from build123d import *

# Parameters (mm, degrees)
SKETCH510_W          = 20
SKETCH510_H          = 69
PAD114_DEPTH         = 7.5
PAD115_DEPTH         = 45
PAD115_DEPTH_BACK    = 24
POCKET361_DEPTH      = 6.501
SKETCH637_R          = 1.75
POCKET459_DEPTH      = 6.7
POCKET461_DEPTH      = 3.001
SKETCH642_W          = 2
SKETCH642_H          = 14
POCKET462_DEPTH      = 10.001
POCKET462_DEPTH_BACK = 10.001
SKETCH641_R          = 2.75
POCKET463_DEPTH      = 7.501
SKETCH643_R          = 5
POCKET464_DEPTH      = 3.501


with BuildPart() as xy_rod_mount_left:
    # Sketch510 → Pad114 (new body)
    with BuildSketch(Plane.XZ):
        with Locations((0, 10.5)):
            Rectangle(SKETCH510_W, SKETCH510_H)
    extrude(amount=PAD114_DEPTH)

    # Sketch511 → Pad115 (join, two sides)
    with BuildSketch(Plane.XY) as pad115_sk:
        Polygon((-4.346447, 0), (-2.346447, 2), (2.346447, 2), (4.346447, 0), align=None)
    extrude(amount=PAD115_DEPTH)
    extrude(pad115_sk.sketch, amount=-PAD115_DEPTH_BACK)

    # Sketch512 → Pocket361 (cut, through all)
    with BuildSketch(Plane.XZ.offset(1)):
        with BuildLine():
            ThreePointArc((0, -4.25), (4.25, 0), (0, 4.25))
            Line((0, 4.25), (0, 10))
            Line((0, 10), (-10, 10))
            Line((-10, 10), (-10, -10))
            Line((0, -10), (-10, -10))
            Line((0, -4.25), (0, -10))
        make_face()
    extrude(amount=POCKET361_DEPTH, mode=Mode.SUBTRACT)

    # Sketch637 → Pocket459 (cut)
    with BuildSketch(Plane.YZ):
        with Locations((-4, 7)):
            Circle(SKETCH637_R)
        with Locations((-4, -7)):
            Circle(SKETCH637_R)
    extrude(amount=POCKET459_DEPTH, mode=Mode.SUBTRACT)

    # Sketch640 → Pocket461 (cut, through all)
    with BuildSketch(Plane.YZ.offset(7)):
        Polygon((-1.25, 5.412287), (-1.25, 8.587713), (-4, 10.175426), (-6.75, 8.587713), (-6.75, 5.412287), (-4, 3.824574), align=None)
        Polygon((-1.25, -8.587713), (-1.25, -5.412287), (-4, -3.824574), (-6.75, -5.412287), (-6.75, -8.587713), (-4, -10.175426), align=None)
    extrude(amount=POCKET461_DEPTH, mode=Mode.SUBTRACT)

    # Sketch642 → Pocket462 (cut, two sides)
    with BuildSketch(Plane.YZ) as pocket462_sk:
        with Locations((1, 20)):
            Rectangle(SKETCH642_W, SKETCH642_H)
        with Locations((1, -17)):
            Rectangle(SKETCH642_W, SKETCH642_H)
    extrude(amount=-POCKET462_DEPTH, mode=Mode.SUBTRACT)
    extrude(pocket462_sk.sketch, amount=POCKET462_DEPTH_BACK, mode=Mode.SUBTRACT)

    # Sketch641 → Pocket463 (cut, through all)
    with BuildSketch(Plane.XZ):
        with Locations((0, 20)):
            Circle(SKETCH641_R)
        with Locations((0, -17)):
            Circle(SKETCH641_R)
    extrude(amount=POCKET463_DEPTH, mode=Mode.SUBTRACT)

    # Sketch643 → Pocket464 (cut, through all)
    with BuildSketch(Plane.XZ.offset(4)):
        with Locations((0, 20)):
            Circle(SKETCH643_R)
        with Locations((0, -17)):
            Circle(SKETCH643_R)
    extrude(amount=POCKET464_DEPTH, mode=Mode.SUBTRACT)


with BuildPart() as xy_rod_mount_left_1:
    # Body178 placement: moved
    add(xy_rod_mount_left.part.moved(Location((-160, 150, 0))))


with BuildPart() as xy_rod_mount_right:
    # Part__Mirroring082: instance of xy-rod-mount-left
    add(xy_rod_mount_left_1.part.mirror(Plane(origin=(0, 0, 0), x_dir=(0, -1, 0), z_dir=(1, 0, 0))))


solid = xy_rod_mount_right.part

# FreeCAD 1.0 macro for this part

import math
import FreeCAD as App
import Part
import Sketcher

V = App.Vector
Q = App.Units.Quantity


def add_polygon(sketch, points):
    """Adds a closed chain of lines whose ends are joined by coincident constraints."""
    first, n = sketch.GeometryCount, len(points)
    for a, b in zip(points, points[1:] + points[:1]):
        sketch.addGeometry(Part.LineSegment(App.Vector(*a, 0), App.Vector(*b, 0)), False)
    for i in range(n):
        sketch.addConstraint(Sketcher.Constraint("Coincident", first + i, 2, first + (i + 1) % n, 1))

doc = App.newDocument("Part")
body = doc.addObject("PartDesign::Body", "Body")

# Sketch on XZ plane
sketch1 = body.newObject("Sketcher::SketchObject", "Sketch")
sketch1.AttachmentSupport = (doc.getObject("XZ_Plane"), [""])
sketch1.MapMode = "FlatFace"
add_polygon(sketch1, [(-10, 45), (-10, -24), (10, -24), (10, 45)])  # lines 0-3
sketch1.addConstraint([
    Sketcher.Constraint("Vertical", 0),
    Sketcher.Constraint("Horizontal", 1),
    Sketcher.Constraint("Vertical", 2),
    Sketcher.Constraint("Horizontal", 3),
    Sketcher.Constraint("DistanceX", 1, 1, 1, 2, Q("20 mm")),
    Sketcher.Constraint("DistanceY", 0, 2, 0, 1, Q("69 mm")),
    Sketcher.Constraint("DistanceX", 0, 2, -1, 1, Q("10 mm")),
    Sketcher.Constraint("DistanceY", 0, 2, -1, 1, Q("24 mm")),
])
pad1 = body.newObject("PartDesign::Pad", "Pad")
pad1.Profile = sketch1
pad1.Length = 7.5

# Sketch on XY plane
sketch2 = body.newObject("Sketcher::SketchObject", "Sketch001")
sketch2.AttachmentSupport = (doc.getObject("XY_Plane"), [""])
sketch2.MapMode = "FlatFace"
add_polygon(sketch2, [(-2.3, 2), (-4.3, 0), (4.3, 0), (2.3, 2)])  # lines 0-3
sketch2.addConstraint([
    Sketcher.Constraint("Horizontal", 1),
    Sketcher.Constraint("Horizontal", 3),
    Sketcher.Constraint("Symmetric", 0, 2, 1, 2, -1, 1),
    Sketcher.Constraint("Perpendicular", 0, 2),
    Sketcher.Constraint("Equal", 0, 2),
    Sketcher.Constraint("DistanceY", -1, 1, 2, 2, Q("2 mm")),
    Sketcher.Constraint("DistanceX", 1, 1, 1, 2, Q("8.692894 mm")),
])
pad2 = body.newObject("PartDesign::Pad", "Pad001")
pad2.Profile = sketch2
pad2.Type = "TwoLengths"
pad2.Length = 45
pad2.Length2 = 24

# Sketch on XZ plane
sketch3 = body.newObject("Sketcher::SketchObject", "Sketch002")
sketch3.AttachmentSupport = (doc.getObject("XZ_Plane"), [""])
sketch3.MapMode = "FlatFace"
sketch3.AttachmentOffset = App.Placement(V(0, 0, 1), App.Rotation())
sketch3.addGeometry([
    Part.ArcOfCircle(Part.Circle(V(0, 0, 0), V(0, 0, 1), 4.2), math.radians(-90), math.radians(90)),  # 0
    Part.LineSegment(V(0, 4.2, 0), V(0, 10, 0)),  # 1
    Part.LineSegment(V(0, 10, 0), V(-10, 10, 0)),  # 2
    Part.LineSegment(V(-10, 10, 0), V(-10, -10, 0)),  # 3
    Part.LineSegment(V(-10, -10, 0), V(0, -10, 0)),  # 4
    Part.LineSegment(V(0, -10, 0), V(0, -4.2, 0)),  # 5
], False)
sketch3.addConstraint([
    Sketcher.Constraint("Coincident", 0, 2, 1, 1),
    Sketcher.Constraint("Coincident", 1, 2, 2, 1),
    Sketcher.Constraint("Coincident", 2, 2, 3, 1),
    Sketcher.Constraint("Coincident", 3, 2, 4, 1),
    Sketcher.Constraint("Coincident", 4, 2, 5, 1),
    Sketcher.Constraint("Coincident", 5, 2, 0, 1),
    Sketcher.Constraint("Vertical", 1),
    Sketcher.Constraint("Horizontal", 2),
    Sketcher.Constraint("Vertical", 3),
    Sketcher.Constraint("Horizontal", 4),
    Sketcher.Constraint("Vertical", 5),
    Sketcher.Constraint("Coincident", 0, 3, -1, 1),
    Sketcher.Constraint("Symmetric", 1, 2, 4, 2, -1, 1),
    Sketcher.Constraint("PointOnObject", 0, 2, -2),
    Sketcher.Constraint("DistanceX", 2, 2, 2, 1, Q("10 mm")),
    Sketcher.Constraint("DistanceY", 3, 2, 3, 1, Q("20 mm")),
    Sketcher.Constraint("Radius", 0, Q("4.25 mm")),
])
pocket1 = body.newObject("PartDesign::Pocket", "Pocket")
pocket1.Profile = sketch3
pocket1.Type = "ThroughAll"
pocket1.Reversed = True

# Sketch on YZ plane
sketch4 = body.newObject("Sketcher::SketchObject", "Sketch003")
sketch4.AttachmentSupport = (doc.getObject("YZ_Plane"), [""])
sketch4.MapMode = "FlatFace"
sketch4.addGeometry([
    Part.Circle(V(-4, 7, 0), V(0, 0, 1), 1.8),
    Part.Circle(V(-4, -7, 0), V(0, 0, 1), 1.8),
], False)
sketch4.addConstraint([
    Sketcher.Constraint("Equal", 0, 1),
    Sketcher.Constraint("Symmetric", 0, 3, 1, 3, -1),
    Sketcher.Constraint("Diameter", 0, Q("3.5 mm")),
    Sketcher.Constraint("DistanceX", 0, 3, -1, 1, Q("4 mm")),
    Sketcher.Constraint("DistanceY", -1, 1, 0, 3, Q("7 mm")),
])
pocket2 = body.newObject("PartDesign::Pocket", "Pocket001")
pocket2.Profile = sketch4
pocket2.Length = 6.7
pocket2.Reversed = True

# Sketch on YZ plane
sketch5 = body.newObject("Sketcher::SketchObject", "Sketch004")
sketch5.AttachmentSupport = (doc.getObject("YZ_Plane"), [""])
sketch5.MapMode = "FlatFace"
sketch5.AttachmentOffset = App.Placement(V(0, 0, 7), App.Rotation())
add_polygon(sketch5, [(-1.2, 5.4), (-1.2, 8.6), (-4, 10.2), (-6.8, 8.6), (-6.8, 5.4), (-4, 3.8)])  # lines 0-5
add_polygon(sketch5, [(-1.2, -8.6), (-1.2, -5.4), (-4, -3.8), (-6.8, -5.4), (-6.8, -8.6), (-4, -10.2)])  # lines 6-11
sketch5.addConstraint([
    Sketcher.Constraint("Vertical", 0),
    Sketcher.Constraint("Vertical", 3),
    Sketcher.Constraint("Vertical", 6),
    Sketcher.Constraint("Vertical", 9),
    Sketcher.Constraint("Symmetric", 5, 2, 6, 2, -1),
    Sketcher.Constraint("Symmetric", 4, 2, 7, 2, -1),
    Sketcher.Constraint("Symmetric", 3, 2, 8, 2, -1),
    Sketcher.Constraint("Symmetric", 1, 2, 10, 2, -1),
    Sketcher.Constraint("Parallel", 1, 4),
    Sketcher.Constraint("Parallel", 2, 5),
    Sketcher.Constraint("Parallel", 4, 7),
    Sketcher.Constraint("Parallel", 7, 10),
    Sketcher.Constraint("Parallel", 8, 11),
    Sketcher.Constraint("Horizontal", 0, 2, 2, 2),
    Sketcher.Constraint("Horizontal", 3, 2, 5, 2),
    Sketcher.Constraint("Angle", 1, Q("150.000004 deg")),
    Sketcher.Constraint("DistanceX", 1, 2, -1, 1, Q("4 mm")),
    Sketcher.Constraint("DistanceY", 6, 2, 0, 2, Q("14 mm")),
    Sketcher.Constraint("DistanceX", 2, 2, 0, 2, Q("5.5 mm")),
    Sketcher.Constraint("DistanceY", 0, 1, 0, 2, Q("3.175426 mm")),
])
pocket3 = body.newObject("PartDesign::Pocket", "Pocket002")
pocket3.Profile = sketch5
pocket3.Type = "ThroughAll"
pocket3.Reversed = True

# Sketch on YZ plane
sketch6 = body.newObject("Sketcher::SketchObject", "Sketch005")
sketch6.AttachmentSupport = (doc.getObject("YZ_Plane"), [""])
sketch6.MapMode = "FlatFace"
add_polygon(sketch6, [(0, 27), (0, 13), (2, 13), (2, 27)])  # lines 0-3
add_polygon(sketch6, [(0, -10), (0, -24), (2, -24), (2, -10)])  # lines 4-7
sketch6.addConstraint([
    Sketcher.Constraint("Vertical", 0),
    Sketcher.Constraint("Horizontal", 1),
    Sketcher.Constraint("Vertical", 2),
    Sketcher.Constraint("Horizontal", 3),
    Sketcher.Constraint("Vertical", 4),
    Sketcher.Constraint("Horizontal", 5),
    Sketcher.Constraint("Vertical", 6),
    Sketcher.Constraint("Horizontal", 7),
    Sketcher.Constraint("PointOnObject", 0, 2, -2),
    Sketcher.Constraint("PointOnObject", 4, 2, -2),
    Sketcher.Constraint("Vertical", 2, 2, 5, 2),
    Sketcher.Constraint("Equal", 2, 4),
    Sketcher.Constraint("DistanceX", 1, 1, 1, 2, Q("2 mm")),
    Sketcher.Constraint("DistanceY", 0, 2, 0, 1, Q("14 mm")),
    Sketcher.Constraint("DistanceY", -1, 1, 0, 2, Q("13 mm")),
    Sketcher.Constraint("DistanceY", 4, 2, -1, 1, Q("24 mm")),
])
pocket4 = body.newObject("PartDesign::Pocket", "Pocket003")
pocket4.Profile = sketch6
pocket4.Type = "ThroughAll"
pocket4.Midplane = True

# Sketch on XZ plane
sketch7 = body.newObject("Sketcher::SketchObject", "Sketch006")
sketch7.AttachmentSupport = (doc.getObject("XZ_Plane"), [""])
sketch7.MapMode = "FlatFace"
sketch7.addGeometry([
    Part.Circle(V(0, 20, 0), V(0, 0, 1), 2.8),
    Part.Circle(V(0, -17, 0), V(0, 0, 1), 2.8),
], False)
sketch7.addConstraint([
    Sketcher.Constraint("Equal", 0, 1),
    Sketcher.Constraint("PointOnObject", 0, 3, -2),
    Sketcher.Constraint("PointOnObject", 1, 3, -2),
    Sketcher.Constraint("Diameter", 0, Q("5.5 mm")),
    Sketcher.Constraint("DistanceY", -1, 1, 0, 3, Q("20 mm")),
    Sketcher.Constraint("DistanceY", 1, 3, -1, 1, Q("17 mm")),
])
pocket5 = body.newObject("PartDesign::Pocket", "Pocket004")
pocket5.Profile = sketch7
pocket5.Type = "ThroughAll"
pocket5.Reversed = True

# Sketch on XZ plane
sketch8 = body.newObject("Sketcher::SketchObject", "Sketch007")
sketch8.AttachmentSupport = (doc.getObject("XZ_Plane"), [""])
sketch8.MapMode = "FlatFace"
sketch8.AttachmentOffset = App.Placement(V(0, 0, 4), App.Rotation())
sketch8.addGeometry([
    Part.Circle(V(0, 20, 0), V(0, 0, 1), 5),
    Part.Circle(V(0, -17, 0), V(0, 0, 1), 5),
], False)
sketch8.addConstraint([
    Sketcher.Constraint("Equal", 0, 1),
    Sketcher.Constraint("PointOnObject", 0, 3, -2),
    Sketcher.Constraint("PointOnObject", 1, 3, -2),
    Sketcher.Constraint("Diameter", 0, Q("10 mm")),
    Sketcher.Constraint("DistanceY", -1, 1, 0, 3, Q("20 mm")),
    Sketcher.Constraint("DistanceY", 1, 3, -1, 1, Q("17 mm")),
])
pocket6 = body.newObject("PartDesign::Pocket", "Pocket005")
pocket6.Profile = sketch8
pocket6.Type = "ThroughAll"
pocket6.Reversed = True
body2 = doc.addObject("PartDesign::Body", "Body001")
doc.recompute()

body.Placement = App.Placement(V(-160, 150, 0), App.Rotation(V(0, 0, 1), 0))
boolean = body2.newObject("PartDesign::Boolean", "Boolean")
boolean.Type = "Fuse"
boolean.addObjects([body])
body3 = doc.addObject("PartDesign::Body", "Body002")
doc.recompute()

mirroring = doc.addObject("Part::Mirroring", "Mirroring")
mirroring.Source = body2
mirroring.Base = V(0, 0, 0)
mirroring.Normal = V(1, 0, 0)
body3.BaseFeature = mirroring
doc.recompute()
body2.Visibility = False
mirroring.Visibility = False

doc.recompute()
